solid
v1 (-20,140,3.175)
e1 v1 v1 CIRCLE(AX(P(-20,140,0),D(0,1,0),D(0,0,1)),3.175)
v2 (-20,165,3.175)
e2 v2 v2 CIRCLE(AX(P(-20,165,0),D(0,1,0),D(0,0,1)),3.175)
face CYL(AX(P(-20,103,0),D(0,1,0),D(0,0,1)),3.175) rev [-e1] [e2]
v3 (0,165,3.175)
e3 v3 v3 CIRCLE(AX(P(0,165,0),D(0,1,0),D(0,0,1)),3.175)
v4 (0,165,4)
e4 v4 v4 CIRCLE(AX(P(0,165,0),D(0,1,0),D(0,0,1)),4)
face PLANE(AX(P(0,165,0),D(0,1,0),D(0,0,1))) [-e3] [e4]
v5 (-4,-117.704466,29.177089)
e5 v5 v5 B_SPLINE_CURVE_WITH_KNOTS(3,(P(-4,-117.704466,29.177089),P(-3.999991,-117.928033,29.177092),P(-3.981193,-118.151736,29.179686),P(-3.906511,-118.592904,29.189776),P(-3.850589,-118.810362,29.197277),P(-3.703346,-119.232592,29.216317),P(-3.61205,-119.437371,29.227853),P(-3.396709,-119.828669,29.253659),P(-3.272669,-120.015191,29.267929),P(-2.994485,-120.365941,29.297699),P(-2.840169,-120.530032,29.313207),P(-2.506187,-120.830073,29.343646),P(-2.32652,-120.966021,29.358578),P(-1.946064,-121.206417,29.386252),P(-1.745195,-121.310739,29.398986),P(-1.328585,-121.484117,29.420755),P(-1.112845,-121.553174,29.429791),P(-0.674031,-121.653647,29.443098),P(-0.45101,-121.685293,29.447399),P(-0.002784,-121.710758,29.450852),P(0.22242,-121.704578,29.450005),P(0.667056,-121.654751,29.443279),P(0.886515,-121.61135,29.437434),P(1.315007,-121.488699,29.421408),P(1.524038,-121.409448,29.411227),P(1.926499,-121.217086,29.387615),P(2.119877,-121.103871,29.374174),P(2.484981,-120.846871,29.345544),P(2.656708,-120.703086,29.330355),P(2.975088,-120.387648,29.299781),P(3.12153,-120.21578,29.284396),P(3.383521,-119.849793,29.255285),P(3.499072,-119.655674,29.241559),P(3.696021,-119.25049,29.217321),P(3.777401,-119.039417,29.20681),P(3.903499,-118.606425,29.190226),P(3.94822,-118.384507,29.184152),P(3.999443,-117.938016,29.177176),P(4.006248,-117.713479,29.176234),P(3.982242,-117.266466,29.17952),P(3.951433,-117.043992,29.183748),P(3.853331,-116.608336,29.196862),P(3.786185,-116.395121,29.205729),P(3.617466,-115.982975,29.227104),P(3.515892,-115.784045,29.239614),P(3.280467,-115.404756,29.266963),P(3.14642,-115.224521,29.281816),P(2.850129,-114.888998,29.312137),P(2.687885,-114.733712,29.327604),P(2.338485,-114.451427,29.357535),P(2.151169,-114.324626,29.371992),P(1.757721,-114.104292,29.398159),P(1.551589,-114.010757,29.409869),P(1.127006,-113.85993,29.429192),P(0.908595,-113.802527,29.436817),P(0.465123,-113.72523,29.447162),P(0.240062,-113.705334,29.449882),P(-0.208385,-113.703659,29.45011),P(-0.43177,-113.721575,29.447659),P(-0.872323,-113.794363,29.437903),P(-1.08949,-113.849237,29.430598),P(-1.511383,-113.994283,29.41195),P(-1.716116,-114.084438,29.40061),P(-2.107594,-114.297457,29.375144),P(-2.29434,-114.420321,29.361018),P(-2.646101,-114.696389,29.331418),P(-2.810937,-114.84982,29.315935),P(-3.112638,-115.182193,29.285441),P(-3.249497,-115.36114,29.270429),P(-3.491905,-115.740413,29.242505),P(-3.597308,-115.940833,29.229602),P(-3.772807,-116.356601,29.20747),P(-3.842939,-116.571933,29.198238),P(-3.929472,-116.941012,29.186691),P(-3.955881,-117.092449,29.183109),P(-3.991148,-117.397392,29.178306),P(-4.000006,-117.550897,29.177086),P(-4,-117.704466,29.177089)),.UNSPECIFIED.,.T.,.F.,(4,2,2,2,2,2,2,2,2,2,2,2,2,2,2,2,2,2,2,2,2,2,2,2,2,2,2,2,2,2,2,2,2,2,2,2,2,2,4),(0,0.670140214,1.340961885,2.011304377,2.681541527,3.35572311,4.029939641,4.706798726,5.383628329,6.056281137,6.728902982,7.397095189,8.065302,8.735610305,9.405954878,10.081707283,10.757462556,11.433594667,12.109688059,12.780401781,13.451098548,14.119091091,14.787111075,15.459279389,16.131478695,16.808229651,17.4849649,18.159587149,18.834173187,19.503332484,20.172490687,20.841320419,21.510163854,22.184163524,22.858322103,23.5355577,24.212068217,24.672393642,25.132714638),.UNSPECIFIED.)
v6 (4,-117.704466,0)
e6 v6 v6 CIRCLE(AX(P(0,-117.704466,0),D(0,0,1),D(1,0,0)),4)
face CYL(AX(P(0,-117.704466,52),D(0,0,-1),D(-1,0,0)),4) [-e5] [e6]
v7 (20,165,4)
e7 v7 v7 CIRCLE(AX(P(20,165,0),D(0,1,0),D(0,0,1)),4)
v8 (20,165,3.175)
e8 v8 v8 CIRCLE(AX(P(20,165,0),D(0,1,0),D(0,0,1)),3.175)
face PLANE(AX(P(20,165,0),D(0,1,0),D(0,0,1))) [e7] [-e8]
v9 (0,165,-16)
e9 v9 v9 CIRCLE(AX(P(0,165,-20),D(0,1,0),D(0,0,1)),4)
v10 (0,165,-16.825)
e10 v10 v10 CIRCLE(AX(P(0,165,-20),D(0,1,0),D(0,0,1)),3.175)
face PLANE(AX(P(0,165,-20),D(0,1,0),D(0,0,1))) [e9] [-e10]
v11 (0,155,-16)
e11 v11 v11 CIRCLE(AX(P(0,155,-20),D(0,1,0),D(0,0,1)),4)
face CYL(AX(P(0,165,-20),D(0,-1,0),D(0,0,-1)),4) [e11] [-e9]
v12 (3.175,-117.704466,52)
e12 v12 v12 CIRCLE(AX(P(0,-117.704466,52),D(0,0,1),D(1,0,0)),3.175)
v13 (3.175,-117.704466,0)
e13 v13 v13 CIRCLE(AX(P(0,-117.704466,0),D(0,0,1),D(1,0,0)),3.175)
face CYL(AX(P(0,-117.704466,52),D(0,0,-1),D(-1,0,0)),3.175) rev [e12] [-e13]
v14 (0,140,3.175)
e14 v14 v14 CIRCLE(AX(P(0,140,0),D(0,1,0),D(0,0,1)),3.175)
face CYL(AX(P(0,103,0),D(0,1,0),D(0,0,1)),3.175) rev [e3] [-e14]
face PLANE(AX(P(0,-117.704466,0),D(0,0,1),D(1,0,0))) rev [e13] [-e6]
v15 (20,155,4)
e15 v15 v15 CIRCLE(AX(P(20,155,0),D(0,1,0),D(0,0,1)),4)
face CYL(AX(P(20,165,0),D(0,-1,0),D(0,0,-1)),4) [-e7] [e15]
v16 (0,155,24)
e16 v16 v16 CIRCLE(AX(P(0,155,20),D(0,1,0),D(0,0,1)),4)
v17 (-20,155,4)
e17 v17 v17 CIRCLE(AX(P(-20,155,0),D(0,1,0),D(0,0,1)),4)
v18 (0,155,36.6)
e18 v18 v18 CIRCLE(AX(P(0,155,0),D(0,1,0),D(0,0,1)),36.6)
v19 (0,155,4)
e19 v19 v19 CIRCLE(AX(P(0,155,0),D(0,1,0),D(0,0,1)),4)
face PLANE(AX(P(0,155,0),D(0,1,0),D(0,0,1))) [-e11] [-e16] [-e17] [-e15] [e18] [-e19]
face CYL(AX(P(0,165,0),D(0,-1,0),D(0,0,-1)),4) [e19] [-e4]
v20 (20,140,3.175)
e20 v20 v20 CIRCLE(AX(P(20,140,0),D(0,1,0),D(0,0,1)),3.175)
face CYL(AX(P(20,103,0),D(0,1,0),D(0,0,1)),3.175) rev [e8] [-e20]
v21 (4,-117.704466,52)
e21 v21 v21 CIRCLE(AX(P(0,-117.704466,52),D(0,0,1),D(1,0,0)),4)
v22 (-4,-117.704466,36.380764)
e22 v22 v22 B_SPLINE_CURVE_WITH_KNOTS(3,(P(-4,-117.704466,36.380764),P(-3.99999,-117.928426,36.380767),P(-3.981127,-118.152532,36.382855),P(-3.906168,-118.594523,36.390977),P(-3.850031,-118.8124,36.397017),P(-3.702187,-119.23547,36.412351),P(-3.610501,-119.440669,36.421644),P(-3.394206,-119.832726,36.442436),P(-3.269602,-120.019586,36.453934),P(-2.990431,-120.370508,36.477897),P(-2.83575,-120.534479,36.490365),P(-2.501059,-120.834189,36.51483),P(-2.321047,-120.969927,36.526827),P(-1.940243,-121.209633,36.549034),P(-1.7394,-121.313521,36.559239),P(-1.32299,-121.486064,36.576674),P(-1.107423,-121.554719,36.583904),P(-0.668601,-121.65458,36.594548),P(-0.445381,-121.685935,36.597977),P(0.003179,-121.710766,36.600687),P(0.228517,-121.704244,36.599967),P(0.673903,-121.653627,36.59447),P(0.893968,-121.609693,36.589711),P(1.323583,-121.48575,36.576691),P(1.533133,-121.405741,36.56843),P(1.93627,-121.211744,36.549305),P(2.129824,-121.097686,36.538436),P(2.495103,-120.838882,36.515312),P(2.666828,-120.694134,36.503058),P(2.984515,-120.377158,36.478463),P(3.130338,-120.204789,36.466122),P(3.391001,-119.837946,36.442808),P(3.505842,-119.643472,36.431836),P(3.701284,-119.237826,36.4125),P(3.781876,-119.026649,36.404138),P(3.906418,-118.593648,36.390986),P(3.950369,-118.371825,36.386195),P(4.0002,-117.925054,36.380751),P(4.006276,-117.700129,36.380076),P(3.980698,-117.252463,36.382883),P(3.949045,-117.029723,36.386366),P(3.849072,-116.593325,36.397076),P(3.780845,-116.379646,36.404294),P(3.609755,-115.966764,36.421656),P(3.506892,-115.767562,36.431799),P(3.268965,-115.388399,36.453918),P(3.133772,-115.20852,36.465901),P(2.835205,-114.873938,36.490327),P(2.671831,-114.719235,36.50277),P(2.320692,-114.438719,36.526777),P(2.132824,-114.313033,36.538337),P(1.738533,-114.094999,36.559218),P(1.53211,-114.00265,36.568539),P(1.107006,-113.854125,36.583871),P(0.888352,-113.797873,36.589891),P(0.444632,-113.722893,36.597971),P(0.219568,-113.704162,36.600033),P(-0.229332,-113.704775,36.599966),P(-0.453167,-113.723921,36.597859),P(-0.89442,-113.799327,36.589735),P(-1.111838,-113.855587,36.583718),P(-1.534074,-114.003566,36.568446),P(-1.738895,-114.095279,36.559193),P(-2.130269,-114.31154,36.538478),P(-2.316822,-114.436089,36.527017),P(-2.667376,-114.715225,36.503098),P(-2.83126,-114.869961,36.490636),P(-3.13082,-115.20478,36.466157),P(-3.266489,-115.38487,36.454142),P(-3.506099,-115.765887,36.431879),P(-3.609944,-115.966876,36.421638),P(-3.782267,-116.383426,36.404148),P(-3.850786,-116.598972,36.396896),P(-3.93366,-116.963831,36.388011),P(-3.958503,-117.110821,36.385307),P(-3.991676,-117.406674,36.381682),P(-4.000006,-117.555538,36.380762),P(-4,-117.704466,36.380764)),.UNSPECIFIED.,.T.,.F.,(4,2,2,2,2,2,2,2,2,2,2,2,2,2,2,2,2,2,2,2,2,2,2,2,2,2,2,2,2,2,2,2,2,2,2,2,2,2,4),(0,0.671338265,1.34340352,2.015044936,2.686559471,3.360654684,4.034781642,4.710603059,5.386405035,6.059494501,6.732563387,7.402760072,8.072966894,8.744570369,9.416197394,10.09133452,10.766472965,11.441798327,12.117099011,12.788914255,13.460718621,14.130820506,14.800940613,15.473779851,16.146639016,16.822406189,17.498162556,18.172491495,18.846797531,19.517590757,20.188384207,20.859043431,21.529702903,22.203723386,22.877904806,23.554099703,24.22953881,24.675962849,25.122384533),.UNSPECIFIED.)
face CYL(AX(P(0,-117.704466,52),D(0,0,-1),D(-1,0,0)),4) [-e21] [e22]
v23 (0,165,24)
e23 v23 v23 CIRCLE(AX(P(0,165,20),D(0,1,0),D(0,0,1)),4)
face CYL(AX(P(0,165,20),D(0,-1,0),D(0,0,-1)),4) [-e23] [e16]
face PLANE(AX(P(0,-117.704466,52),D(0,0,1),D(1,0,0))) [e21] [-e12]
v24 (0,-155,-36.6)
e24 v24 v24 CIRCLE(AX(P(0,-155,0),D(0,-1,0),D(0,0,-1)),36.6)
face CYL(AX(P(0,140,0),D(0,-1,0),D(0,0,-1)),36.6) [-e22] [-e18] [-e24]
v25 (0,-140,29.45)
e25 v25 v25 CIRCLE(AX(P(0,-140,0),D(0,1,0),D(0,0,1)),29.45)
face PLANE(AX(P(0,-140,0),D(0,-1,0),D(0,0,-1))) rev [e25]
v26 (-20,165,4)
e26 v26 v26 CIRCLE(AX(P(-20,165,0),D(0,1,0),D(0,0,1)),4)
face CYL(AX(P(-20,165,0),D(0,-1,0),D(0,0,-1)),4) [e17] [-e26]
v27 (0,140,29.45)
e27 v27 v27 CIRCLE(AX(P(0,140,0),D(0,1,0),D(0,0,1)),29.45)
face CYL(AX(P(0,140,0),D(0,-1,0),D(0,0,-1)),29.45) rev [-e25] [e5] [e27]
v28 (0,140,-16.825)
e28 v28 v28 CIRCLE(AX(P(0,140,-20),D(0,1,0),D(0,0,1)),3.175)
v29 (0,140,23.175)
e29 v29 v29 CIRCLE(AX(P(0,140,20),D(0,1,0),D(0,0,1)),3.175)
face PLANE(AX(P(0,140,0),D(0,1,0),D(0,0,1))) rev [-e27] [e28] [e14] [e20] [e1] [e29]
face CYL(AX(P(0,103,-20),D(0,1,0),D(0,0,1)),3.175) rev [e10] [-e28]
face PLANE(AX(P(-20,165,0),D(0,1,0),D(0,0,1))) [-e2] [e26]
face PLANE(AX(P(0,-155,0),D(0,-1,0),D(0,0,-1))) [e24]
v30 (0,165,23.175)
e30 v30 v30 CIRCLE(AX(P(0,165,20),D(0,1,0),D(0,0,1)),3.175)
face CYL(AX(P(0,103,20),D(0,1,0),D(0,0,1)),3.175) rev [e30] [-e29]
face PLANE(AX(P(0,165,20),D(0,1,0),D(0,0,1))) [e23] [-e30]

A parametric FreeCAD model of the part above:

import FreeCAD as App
import Part
import Sketcher

V = App.Vector

doc = App.newDocument("Part")
body = doc.addObject("PartDesign::Body", "Body")

# Sketch on XZ plane
sketch1 = body.newObject("Sketcher::SketchObject", "Sketch")
sketch1.AttachmentSupport = (doc.getObject("XZ_Plane"), [""])
sketch1.MapMode = "FlatFace"
sketch1.addGeometry(Part.Circle(V(0, 0, 0), V(0, 0, 1), 37), False)
sketch1.addGeometry(Part.Circle(V(0, 0, 0), V(0, 0, 1), 29), False)
sketch1.addConstraint(Sketcher.Constraint("Coincident", 0, 3, -1, 1))
sketch1.addConstraint(Sketcher.Constraint("Coincident", 1, 3, -1, 1))
sketch1.addConstraint(Sketcher.Constraint("Diameter", 0, 73.2))
sketch1.addConstraint(Sketcher.Constraint("Diameter", 1, 58.9))
pad1 = body.newObject("PartDesign::Pad", "Pad")
pad1.Profile = sketch1
pad1.Length = 280
pad1.Midplane = True

# Sketch on XZ plane
sketch2 = body.newObject("Sketcher::SketchObject", "Sketch001")
sketch2.AttachmentSupport = (doc.getObject("XZ_Plane"), [""])
sketch2.MapMode = "FlatFace"
sketch2.AttachmentOffset = App.Placement(V(0, 0, -140), App.Rotation())
sketch2.addGeometry(Part.Circle(V(0, 0, 0), V(0, 0, 1), 37), False)
sketch2.addConstraint(Sketcher.Constraint("Coincident", 0, 3, -1, 1))
sketch2.addConstraint(Sketcher.Constraint("Diameter", 0, 73.2))
pad2 = body.newObject("PartDesign::Pad", "Pad001")
pad2.Profile = sketch2
pad2.Length = 15
pad2.Reversed = True

# Sketch on XY plane
sketch3 = body.newObject("Sketcher::SketchObject", "Sketch002")
sketch3.AttachmentSupport = (doc.getObject("XY_Plane"), [""])
sketch3.MapMode = "FlatFace"
sketch3.addGeometry(Part.Circle(V(0, -117.7, 0), V(0, 0, 1), 3.2), False)
sketch3.addConstraint(Sketcher.Constraint("PointOnObject", 0, 3, -2))
sketch3.addConstraint(Sketcher.Constraint("Diameter", 0, 6.35))
sketch3.addConstraint(Sketcher.Constraint("DistanceY", 0, 3, -1, 1, 117.704466))
pocket1 = body.newObject("PartDesign::Pocket", "Pocket")
pocket1.Profile = sketch3
pocket1.Length = 52
pocket1.Reversed = True

# Sketch on XY plane
sketch4 = body.newObject("Sketcher::SketchObject", "Sketch003")
sketch4.AttachmentSupport = (doc.getObject("XY_Plane"), [""])
sketch4.MapMode = "FlatFace"
sketch4.addGeometry(Part.Circle(V(0, -117.7, 0), V(0, 0, 1), 4), False)
sketch4.addGeometry(Part.Circle(V(0, -117.7, 0), V(0, 0, 1), 3.2), False)
sketch4.addConstraint(Sketcher.Constraint("Coincident", 1, 3, 0, 3))
sketch4.addConstraint(Sketcher.Constraint("PointOnObject", 0, 3, -2))
sketch4.addConstraint(Sketcher.Constraint("Diameter", 0, 8.0))
sketch4.addConstraint(Sketcher.Constraint("Diameter", 1, 6.35))
sketch4.addConstraint(Sketcher.Constraint("DistanceY", 0, 3, -1, 1, 117.704466))
pad3 = body.newObject("PartDesign::Pad", "Pad002")
pad3.Profile = sketch4
pad3.Length = 52

# Sketch on XZ plane
sketch5 = body.newObject("Sketcher::SketchObject", "Sketch004")
sketch5.AttachmentSupport = (doc.getObject("XZ_Plane"), [""])
sketch5.MapMode = "FlatFace"
sketch5.AttachmentOffset = App.Placement(V(0, 0, -155), App.Rotation())
sketch5.addGeometry(Part.Circle(V(0, -20, 0), V(0, 0, 1), 3.2), False)
sketch5.addGeometry(Part.Circle(V(0, 0, 0), V(0, 0, 1), 3.2), False)
sketch5.addGeometry(Part.Circle(V(-20, 0, 0), V(0, 0, 1), 3.2), False)
sketch5.addGeometry(Part.Circle(V(20, 0, 0), V(0, 0, 1), 3.2), False)
sketch5.addGeometry(Part.Circle(V(0, 20, 0), V(0, 0, 1), 3.2), False)
sketch5.addConstraint(Sketcher.Constraint("Coincident", 1, 3, -1, 1))
sketch5.addConstraint(Sketcher.Constraint("Equal", 0, 1))
sketch5.addConstraint(Sketcher.Constraint("Equal", 1, 2))
sketch5.addConstraint(Sketcher.Constraint("Equal", 2, 3))
sketch5.addConstraint(Sketcher.Constraint("Equal", 3, 4))
sketch5.addConstraint(Sketcher.Constraint("Symmetric", 2, 3, 3, 3, -1, 1))
sketch5.addConstraint(Sketcher.Constraint("Symmetric", 0, 3, 4, 3, -1, 1))
sketch5.addConstraint(Sketcher.Constraint("PointOnObject", 0, 3, -2))
sketch5.addConstraint(Sketcher.Constraint("PointOnObject", 2, 3, -1))
sketch5.addConstraint(Sketcher.Constraint("Diameter", 0, 6.35))
sketch5.addConstraint(Sketcher.Constraint("DistanceY", 0, 3, -1, 1, 20.0))
sketch5.addConstraint(Sketcher.Constraint("DistanceX", 2, 3, -1, 1, 20.0))
pocket2 = body.newObject("PartDesign::Pocket", "Pocket001")
pocket2.Profile = sketch5
pocket2.Length = 52
pocket2.Reversed = True

# Sketch on XZ plane
sketch6 = body.newObject("Sketcher::SketchObject", "Sketch005")
sketch6.AttachmentSupport = (doc.getObject("XZ_Plane"), [""])
sketch6.MapMode = "FlatFace"
sketch6.AttachmentOffset = App.Placement(V(0, 0, -155), App.Rotation())
sketch6.addGeometry(Part.Circle(V(0, 0, 0), V(0, 0, 1), 4), False)
sketch6.addGeometry(Part.Circle(V(0, 0, 0), V(0, 0, 1), 3.2), False)
sketch6.addGeometry(Part.Circle(V(0, -20, 0), V(0, 0, 1), 4), False)
sketch6.addGeometry(Part.Circle(V(0, -20, 0), V(0, 0, 1), 3.2), False)
sketch6.addGeometry(Part.Circle(V(20, 0, 0), V(0, 0, 1), 4), False)
sketch6.addGeometry(Part.Circle(V(20, 0, 0), V(0, 0, 1), 3.2), False)
sketch6.addGeometry(Part.Circle(V(-20, 0, 0), V(0, 0, 1), 4), False)
sketch6.addGeometry(Part.Circle(V(-20, 0, 0), V(0, 0, 1), 3.2), False)
sketch6.addGeometry(Part.Circle(V(0, 20, 0), V(0, 0, 1), 4), False)
sketch6.addGeometry(Part.Circle(V(0, 20, 0), V(0, 0, 1), 3.2), False)
sketch6.addConstraint(Sketcher.Constraint("Coincident", 0, 3, -1, 1))
sketch6.addConstraint(Sketcher.Constraint("Coincident", 1, 3, -1, 1))
sketch6.addConstraint(Sketcher.Constraint("Coincident", 3, 3, 2, 3))
sketch6.addConstraint(Sketcher.Constraint("Coincident", 5, 3, 4, 3))
sketch6.addConstraint(Sketcher.Constraint("Coincident", 7, 3, 6, 3))
sketch6.addConstraint(Sketcher.Constraint("Coincident", 9, 3, 8, 3))
sketch6.addConstraint(Sketcher.Constraint("Equal", 0, 2))
sketch6.addConstraint(Sketcher.Constraint("Equal", 1, 3))
sketch6.addConstraint(Sketcher.Constraint("Equal", 2, 4))
sketch6.addConstraint(Sketcher.Constraint("Equal", 3, 5))
sketch6.addConstraint(Sketcher.Constraint("Equal", 4, 6))
sketch6.addConstraint(Sketcher.Constraint("Equal", 5, 7))
sketch6.addConstraint(Sketcher.Constraint("Equal", 6, 8))
sketch6.addConstraint(Sketcher.Constraint("Equal", 7, 9))
sketch6.addConstraint(Sketcher.Constraint("Symmetric", 4, 3, 6, 3, -1, 1))
sketch6.addConstraint(Sketcher.Constraint("Symmetric", 2, 3, 8, 3, -1, 1))
sketch6.addConstraint(Sketcher.Constraint("PointOnObject", 2, 3, -2))
sketch6.addConstraint(Sketcher.Constraint("PointOnObject", 4, 3, -1))
sketch6.addConstraint(Sketcher.Constraint("Diameter", 0, 8.0))
sketch6.addConstraint(Sketcher.Constraint("Diameter", 1, 6.35))
sketch6.addConstraint(Sketcher.Constraint("DistanceY", 2, 3, -1, 1, 20.0))
sketch6.addConstraint(Sketcher.Constraint("DistanceX", -1, 1, 4, 3, 20.0))
pad4 = body.newObject("PartDesign::Pad", "Pad003")
pad4.Profile = sketch6
pad4.Length = 10
pad4.Reversed = True

# Sketch on XZ plane
sketch7 = body.newObject("Sketcher::SketchObject", "Sketch006")
sketch7.AttachmentSupport = (doc.getObject("XZ_Plane"), [""])
sketch7.MapMode = "FlatFace"
sketch7.AttachmentOffset = App.Placement(V(0, 0, 140), App.Rotation())
sketch7.addGeometry(Part.Circle(V(0, 0, 0), V(0, 0, 1), 37), False)
sketch7.addConstraint(Sketcher.Constraint("Coincident", 0, 3, -1, 1))
sketch7.addConstraint(Sketcher.Constraint("Diameter", 0, 73.2))
pad5 = body.newObject("PartDesign::Pad", "Pad004")
pad5.Profile = sketch7
pad5.Length = 15

doc.recompute()
